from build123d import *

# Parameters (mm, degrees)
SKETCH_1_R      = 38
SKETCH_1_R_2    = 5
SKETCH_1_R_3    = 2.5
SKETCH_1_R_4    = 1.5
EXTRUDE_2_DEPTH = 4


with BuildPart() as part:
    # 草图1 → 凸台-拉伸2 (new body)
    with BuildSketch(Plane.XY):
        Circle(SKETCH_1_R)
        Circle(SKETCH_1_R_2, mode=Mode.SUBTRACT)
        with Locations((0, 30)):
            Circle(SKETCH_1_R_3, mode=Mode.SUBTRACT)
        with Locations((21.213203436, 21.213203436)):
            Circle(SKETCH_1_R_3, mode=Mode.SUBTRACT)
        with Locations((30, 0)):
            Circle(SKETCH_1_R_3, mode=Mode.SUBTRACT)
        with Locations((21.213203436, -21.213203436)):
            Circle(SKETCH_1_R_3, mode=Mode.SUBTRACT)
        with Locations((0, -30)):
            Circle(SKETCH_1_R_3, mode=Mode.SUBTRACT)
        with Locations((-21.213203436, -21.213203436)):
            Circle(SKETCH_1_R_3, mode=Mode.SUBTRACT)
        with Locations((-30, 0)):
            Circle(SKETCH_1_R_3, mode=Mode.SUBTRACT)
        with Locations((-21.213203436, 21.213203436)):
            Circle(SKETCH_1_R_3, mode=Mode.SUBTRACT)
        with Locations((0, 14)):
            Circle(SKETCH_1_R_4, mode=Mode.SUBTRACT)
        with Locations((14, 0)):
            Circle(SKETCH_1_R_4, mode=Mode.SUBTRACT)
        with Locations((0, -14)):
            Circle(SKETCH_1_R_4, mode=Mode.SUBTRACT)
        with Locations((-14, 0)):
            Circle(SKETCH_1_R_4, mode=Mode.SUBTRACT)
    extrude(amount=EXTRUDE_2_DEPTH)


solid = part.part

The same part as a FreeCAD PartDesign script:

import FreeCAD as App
import Part
import Sketcher
from FreeCAD import Vector
Q = App.Units.Quantity

doc = App.newDocument("Part")
body = doc.addObject("PartDesign::Body", "Body")

# Sketch on XY plane
sketch1 = body.newObject("Sketcher::SketchObject", "Sketch")
sketch1.AttachmentSupport = (doc.getObject("XY_Plane"), [""])
sketch1.MapMode = "FlatFace"
sketch1.addGeometry([
    Part.Circle(Vector(0, 0, 0), Vector(0, 0, 1), 38),  # 0
    Part.Circle(Vector(-21.213203, -21.213203, 0), Vector(0, 0, 1), 2.5),  # 1
    Part.Circle(Vector(0, -30, 0), Vector(0, 0, 1), 2.5),  # 2
    Part.Circle(Vector(21.213203, -21.213203, 0), Vector(0, 0, 1), 2.5),  # 3
    Part.Circle(Vector(0, -14, 0), Vector(0, 0, 1), 1.5),  # 4
    Part.Circle(Vector(-30, 0, 0), Vector(0, 0, 1), 2.5),  # 5
    Part.Circle(Vector(-14, 0, 0), Vector(0, 0, 1), 1.5),  # 6
    Part.Circle(Vector(-21.213203, 21.213203, 0), Vector(0, 0, 1), 2.5),  # 7
    Part.Circle(Vector(0, 0, 0), Vector(0, 0, 1), 5),  # 8
    Part.Circle(Vector(14, 0, 0), Vector(0, 0, 1), 1.5),  # 9
    Part.Circle(Vector(0, 14, 0), Vector(0, 0, 1), 1.5),  # 10
    Part.Circle(Vector(30, 0, 0), Vector(0, 0, 1), 2.5),  # 11
    Part.Circle(Vector(0, 30, 0), Vector(0, 0, 1), 2.5),  # 12
    Part.Circle(Vector(21.213203, 21.213203, 0), Vector(0, 0, 1), 2.5),  # 13
], False)
sketch1.addConstraint([
    Sketcher.Constraint("Coincident", 0, 3, -1, 1),
    Sketcher.Constraint("Coincident", 8, 3, -1, 1),
    Sketcher.Constraint("Equal", 1, 2),
    Sketcher.Constraint("Equal", 2, 3),
    Sketcher.Constraint("Equal", 3, 5),
    Sketcher.Constraint("Equal", 4, 6),
    Sketcher.Constraint("Equal", 5, 7),
    Sketcher.Constraint("Equal", 6, 9),
    Sketcher.Constraint("Equal", 9, 10),
    Sketcher.Constraint("Equal", 7, 11),
    Sketcher.Constraint("Equal", 11, 12),
    Sketcher.Constraint("Equal", 12, 13),
    Sketcher.Constraint("Symmetric", 3, 3, 7, 3, -1, 1),
    Sketcher.Constraint("Symmetric", 6, 3, 9, 3, -1, 1),
    Sketcher.Constraint("Symmetric", 4, 3, 10, 3, -1, 1),
    Sketcher.Constraint("Symmetric", 5, 3, 11, 3, -1, 1),
    Sketcher.Constraint("Symmetric", 2, 3, 12, 3, -1, 1),
    Sketcher.Constraint("Symmetric", 1, 3, 13, 3, -1, 1),
    Sketcher.Constraint("Symmetric", 1, 3, 3, 3, -2),
    Sketcher.Constraint("PointOnObject", 2, 3, -2),
    Sketcher.Constraint("PointOnObject", 4, 3, -2),
    Sketcher.Constraint("PointOnObject", 5, 3, -1),
    Sketcher.Constraint("PointOnObject", 6, 3, -1),
    Sketcher.Constraint("Diameter", 0, Q("76 mm")),
    Sketcher.Constraint("Diameter", 1, Q("5 mm")),
    Sketcher.Constraint("Diameter", 4, Q("3 mm")),
    Sketcher.Constraint("Diameter", 8, Q("10 mm")),
    Sketcher.Constraint("DistanceY", 2, 3, -1, 1, Q("30 mm")),
    Sketcher.Constraint("DistanceY", 4, 3, -1, 1, Q("14 mm")),
    Sketcher.Constraint("DistanceX", 5, 3, -1, 1, Q("30 mm")),
    Sketcher.Constraint("DistanceX", 6, 3, -1, 1, Q("14 mm")),
    Sketcher.Constraint("DistanceX", 1, 3, -1, 1, Q("21.213203 mm")),
    Sketcher.Constraint("DistanceY", 1, 3, -1, 1, Q("21.213203 mm")),
])
pad1 = body.newObject("PartDesign::Pad", "Pad")
pad1.Profile = sketch1
pad1.Length = 4

doc.recompute()
